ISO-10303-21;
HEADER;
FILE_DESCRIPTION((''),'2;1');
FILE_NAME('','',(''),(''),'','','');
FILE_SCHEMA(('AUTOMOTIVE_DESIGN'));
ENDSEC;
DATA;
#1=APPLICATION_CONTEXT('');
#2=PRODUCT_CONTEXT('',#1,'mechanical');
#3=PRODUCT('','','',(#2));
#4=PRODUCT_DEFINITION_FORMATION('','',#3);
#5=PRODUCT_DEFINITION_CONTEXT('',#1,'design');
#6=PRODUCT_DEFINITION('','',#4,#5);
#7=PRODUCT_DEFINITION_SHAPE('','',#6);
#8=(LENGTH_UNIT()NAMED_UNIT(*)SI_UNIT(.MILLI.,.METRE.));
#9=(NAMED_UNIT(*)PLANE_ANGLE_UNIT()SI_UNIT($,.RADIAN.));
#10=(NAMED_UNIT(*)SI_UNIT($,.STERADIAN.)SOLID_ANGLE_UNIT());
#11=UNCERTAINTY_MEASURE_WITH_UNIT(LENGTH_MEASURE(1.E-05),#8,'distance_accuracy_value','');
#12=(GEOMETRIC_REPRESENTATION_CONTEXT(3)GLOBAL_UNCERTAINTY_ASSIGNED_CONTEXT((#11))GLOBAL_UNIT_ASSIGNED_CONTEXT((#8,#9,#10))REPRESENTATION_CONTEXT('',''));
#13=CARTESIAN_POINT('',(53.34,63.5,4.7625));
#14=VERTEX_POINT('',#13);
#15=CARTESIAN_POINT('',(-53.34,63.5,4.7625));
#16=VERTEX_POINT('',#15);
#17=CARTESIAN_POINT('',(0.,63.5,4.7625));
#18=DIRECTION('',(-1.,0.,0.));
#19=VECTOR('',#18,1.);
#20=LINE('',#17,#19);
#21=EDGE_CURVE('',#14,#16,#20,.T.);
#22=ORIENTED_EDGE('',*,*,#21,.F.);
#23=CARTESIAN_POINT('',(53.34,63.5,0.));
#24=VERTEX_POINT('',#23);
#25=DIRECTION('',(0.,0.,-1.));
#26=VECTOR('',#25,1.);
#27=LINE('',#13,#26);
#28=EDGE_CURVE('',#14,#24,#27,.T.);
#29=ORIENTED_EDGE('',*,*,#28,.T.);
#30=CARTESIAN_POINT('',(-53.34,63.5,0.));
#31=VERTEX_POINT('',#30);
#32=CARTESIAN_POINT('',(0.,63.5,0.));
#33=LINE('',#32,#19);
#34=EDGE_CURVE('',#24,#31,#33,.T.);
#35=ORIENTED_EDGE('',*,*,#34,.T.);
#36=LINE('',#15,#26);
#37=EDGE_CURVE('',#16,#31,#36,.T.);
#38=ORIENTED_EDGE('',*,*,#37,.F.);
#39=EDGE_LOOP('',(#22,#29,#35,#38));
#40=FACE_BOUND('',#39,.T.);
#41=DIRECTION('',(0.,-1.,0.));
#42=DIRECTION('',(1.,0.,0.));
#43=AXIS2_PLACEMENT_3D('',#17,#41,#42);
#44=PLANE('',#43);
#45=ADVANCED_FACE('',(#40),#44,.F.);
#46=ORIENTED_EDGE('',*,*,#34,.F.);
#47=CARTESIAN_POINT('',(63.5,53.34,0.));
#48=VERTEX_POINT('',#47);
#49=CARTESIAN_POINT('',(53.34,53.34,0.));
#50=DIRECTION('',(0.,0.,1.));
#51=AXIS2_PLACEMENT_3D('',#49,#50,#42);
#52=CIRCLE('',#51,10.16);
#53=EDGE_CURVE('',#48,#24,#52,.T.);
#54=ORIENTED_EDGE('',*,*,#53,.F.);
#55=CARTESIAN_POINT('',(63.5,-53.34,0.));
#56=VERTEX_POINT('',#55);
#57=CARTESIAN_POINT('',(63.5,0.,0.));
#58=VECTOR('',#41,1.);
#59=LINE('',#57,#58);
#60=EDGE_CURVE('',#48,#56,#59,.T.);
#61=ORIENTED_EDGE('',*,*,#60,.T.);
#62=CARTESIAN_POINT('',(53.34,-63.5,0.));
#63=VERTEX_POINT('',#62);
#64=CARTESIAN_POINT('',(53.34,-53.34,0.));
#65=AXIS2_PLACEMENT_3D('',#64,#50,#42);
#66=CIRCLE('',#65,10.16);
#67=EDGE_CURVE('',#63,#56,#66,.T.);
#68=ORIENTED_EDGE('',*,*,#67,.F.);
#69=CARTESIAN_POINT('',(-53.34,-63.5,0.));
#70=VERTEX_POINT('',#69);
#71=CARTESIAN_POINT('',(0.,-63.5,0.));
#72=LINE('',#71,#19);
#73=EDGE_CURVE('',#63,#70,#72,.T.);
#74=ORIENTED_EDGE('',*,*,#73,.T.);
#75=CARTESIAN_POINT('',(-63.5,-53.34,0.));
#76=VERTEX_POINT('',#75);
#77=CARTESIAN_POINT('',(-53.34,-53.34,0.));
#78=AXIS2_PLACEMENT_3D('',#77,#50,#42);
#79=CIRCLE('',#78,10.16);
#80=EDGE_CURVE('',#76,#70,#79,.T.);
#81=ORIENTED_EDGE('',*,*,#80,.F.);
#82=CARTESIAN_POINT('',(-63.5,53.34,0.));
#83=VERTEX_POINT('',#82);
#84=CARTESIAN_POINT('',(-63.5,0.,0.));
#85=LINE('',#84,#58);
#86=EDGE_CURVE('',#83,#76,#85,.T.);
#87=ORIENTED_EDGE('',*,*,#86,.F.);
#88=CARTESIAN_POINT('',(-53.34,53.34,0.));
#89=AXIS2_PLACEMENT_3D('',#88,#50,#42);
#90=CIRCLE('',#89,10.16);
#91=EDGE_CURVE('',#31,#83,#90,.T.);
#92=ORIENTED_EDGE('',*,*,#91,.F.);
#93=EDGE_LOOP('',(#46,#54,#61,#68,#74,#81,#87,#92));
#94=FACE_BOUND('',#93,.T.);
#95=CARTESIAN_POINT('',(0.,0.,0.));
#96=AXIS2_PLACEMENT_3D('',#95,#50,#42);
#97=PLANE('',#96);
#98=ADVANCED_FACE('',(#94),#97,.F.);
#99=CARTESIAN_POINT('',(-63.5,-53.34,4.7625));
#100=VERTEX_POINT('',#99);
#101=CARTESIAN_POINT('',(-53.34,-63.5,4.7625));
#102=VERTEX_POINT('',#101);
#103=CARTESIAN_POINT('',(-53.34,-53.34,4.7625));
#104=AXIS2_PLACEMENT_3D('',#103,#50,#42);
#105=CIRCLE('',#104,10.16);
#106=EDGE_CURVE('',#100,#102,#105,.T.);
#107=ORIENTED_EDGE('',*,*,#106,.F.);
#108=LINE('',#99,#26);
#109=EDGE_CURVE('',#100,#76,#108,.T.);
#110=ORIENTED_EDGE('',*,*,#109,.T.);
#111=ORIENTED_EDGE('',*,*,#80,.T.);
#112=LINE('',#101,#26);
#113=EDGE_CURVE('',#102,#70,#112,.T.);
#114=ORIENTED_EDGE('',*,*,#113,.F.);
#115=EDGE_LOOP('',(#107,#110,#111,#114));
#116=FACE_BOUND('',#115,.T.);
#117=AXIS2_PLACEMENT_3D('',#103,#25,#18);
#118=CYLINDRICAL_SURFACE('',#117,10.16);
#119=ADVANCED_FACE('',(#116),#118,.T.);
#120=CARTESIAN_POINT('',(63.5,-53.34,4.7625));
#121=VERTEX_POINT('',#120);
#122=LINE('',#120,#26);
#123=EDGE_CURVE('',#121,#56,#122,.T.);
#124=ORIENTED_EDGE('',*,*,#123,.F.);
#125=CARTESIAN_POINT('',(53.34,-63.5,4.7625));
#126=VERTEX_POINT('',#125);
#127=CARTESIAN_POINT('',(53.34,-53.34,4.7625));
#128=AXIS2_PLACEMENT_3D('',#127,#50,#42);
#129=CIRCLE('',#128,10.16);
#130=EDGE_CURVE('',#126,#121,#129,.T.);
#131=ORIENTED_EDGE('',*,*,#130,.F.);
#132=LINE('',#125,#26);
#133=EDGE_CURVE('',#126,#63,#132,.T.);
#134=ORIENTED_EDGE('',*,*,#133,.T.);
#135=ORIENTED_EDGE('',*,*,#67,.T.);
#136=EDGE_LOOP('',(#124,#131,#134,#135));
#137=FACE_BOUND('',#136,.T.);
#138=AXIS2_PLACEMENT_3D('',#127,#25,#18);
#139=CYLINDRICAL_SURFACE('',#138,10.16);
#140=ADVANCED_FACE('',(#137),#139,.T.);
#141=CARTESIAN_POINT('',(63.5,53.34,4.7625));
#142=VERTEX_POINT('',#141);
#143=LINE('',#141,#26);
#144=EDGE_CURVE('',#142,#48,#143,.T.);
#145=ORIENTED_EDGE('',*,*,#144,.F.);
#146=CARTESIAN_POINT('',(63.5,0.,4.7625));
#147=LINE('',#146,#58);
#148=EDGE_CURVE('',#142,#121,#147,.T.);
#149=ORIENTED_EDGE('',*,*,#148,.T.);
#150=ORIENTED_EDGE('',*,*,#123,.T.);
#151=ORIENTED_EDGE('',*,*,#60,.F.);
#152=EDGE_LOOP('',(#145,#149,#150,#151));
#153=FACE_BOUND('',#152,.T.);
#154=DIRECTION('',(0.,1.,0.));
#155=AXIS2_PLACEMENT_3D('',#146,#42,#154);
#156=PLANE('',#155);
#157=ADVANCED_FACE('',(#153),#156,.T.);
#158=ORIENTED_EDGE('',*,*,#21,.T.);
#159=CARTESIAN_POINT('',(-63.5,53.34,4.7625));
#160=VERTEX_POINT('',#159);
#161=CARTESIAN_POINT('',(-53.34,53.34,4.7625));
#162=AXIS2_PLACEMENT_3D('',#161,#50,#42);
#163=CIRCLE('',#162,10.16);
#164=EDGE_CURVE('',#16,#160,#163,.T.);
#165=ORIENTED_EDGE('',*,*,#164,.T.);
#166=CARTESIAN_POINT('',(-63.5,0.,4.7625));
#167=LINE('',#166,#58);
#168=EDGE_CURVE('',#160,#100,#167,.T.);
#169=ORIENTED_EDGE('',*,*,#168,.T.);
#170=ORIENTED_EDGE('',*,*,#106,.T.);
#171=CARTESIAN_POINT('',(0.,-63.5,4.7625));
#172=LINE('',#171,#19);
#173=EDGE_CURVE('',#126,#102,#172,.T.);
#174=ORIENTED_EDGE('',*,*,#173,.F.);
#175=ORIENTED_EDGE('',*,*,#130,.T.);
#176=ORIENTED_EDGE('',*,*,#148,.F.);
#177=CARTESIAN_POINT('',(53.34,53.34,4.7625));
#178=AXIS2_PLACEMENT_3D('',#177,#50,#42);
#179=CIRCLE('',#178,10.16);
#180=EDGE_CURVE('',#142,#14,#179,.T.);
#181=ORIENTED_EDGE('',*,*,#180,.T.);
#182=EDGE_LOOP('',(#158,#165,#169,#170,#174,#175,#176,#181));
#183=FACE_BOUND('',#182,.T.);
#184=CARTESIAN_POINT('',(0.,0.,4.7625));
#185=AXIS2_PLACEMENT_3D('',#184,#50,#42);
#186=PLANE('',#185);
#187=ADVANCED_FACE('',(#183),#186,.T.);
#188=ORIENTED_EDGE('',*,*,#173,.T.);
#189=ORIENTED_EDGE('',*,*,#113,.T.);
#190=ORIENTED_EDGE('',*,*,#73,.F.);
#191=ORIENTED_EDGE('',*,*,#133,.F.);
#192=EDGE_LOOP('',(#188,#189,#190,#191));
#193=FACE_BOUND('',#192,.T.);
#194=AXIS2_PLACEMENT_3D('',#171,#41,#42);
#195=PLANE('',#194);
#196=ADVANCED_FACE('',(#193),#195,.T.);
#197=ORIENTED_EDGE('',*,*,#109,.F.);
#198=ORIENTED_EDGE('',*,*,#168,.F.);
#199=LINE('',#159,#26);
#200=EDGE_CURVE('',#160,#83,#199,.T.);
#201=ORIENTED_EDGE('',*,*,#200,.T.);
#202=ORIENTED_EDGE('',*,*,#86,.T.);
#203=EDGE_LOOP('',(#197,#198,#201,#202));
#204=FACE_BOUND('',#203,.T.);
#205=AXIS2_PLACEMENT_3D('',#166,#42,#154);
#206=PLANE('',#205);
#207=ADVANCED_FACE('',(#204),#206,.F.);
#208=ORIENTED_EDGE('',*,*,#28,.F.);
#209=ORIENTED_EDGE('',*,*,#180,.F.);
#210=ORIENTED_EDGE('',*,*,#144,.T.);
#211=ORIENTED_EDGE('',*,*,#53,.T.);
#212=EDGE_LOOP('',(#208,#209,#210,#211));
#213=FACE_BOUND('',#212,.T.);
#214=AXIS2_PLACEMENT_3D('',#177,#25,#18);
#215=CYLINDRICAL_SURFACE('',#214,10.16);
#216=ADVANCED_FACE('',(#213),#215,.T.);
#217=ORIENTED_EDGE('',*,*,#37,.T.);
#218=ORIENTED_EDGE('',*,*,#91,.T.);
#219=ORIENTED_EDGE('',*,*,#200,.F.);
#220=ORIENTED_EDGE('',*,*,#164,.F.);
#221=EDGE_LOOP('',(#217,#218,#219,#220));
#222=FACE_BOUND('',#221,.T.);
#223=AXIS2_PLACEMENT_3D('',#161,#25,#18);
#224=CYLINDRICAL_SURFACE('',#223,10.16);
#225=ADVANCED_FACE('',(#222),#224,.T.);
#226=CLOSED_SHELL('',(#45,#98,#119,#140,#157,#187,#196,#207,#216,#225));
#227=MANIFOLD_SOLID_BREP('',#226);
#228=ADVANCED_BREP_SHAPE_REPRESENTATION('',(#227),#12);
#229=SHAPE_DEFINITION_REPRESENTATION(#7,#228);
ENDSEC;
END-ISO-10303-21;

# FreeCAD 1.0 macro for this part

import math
import FreeCAD as App
import Part
import Sketcher
from FreeCAD import Vector
Q = App.Units.Quantity

doc = App.newDocument("Part")
body = doc.addObject("PartDesign::Body", "Body")

# Sketch on XY plane
sketch1 = body.newObject("Sketcher::SketchObject", "Sketch")
sketch1.AttachmentSupport = (doc.getObject("XY_Plane"), [""])
sketch1.MapMode = "FlatFace"
sketch1.addGeometry([
    Part.LineSegment(Vector(53, 64, 0), Vector(-53, 64, 0)),  # 0
    Part.ArcOfCircle(Part.Circle(Vector(-53, 53, 0), Vector(0, 0, 1), 10), math.radians(90), math.radians(180)),  # 1
    Part.LineSegment(Vector(-64, 53, 0), Vector(-64, -53, 0)),  # 2
    Part.ArcOfCircle(Part.Circle(Vector(-53, -53, 0), Vector(0, 0, 1), 10), math.radians(180), math.radians(270)),  # 3
    Part.LineSegment(Vector(-53, -64, 0), Vector(53, -64, 0)),  # 4
    Part.ArcOfCircle(Part.Circle(Vector(53, -53, 0), Vector(0, 0, 1), 10), math.radians(-90), math.radians(0)),  # 5
    Part.LineSegment(Vector(64, -53, 0), Vector(64, 53, 0)),  # 6
    Part.ArcOfCircle(Part.Circle(Vector(53, 53, 0), Vector(0, 0, 1), 10), math.radians(0), math.radians(90)),  # 7
], False)
sketch1.addConstraint([
    Sketcher.Constraint("Tangent", 0, 2, 1, 1),
    Sketcher.Constraint("Tangent", 1, 2, 2, 1),
    Sketcher.Constraint("Tangent", 2, 2, 3, 1),
    Sketcher.Constraint("Tangent", 3, 2, 4, 1),
    Sketcher.Constraint("Tangent", 4, 2, 5, 1),
    Sketcher.Constraint("Tangent", 5, 2, 6, 1),
    Sketcher.Constraint("Tangent", 6, 2, 7, 1),
    Sketcher.Constraint("Tangent", 7, 2, 0, 1),
    Sketcher.Constraint("Horizontal", 0),
    Sketcher.Constraint("Vertical", 2),
    Sketcher.Constraint("Horizontal", 4),
    Sketcher.Constraint("Vertical", 6),
    Sketcher.Constraint("Equal", 1, 3),
    Sketcher.Constraint("Equal", 3, 5),
    Sketcher.Constraint("Equal", 5, 7),
    Sketcher.Constraint("Symmetric", 1, 3, 5, 3, -1, 1),
    Sketcher.Constraint("Equal", 4, 2),
    Sketcher.Constraint("Radius", 1, Q("0.4 in")),
    Sketcher.Constraint("DistanceX", 0, 2, 0, 1, Q("4.2 in")),
])
pad1 = body.newObject("PartDesign::Pad", "Pad")
pad1.Profile = sketch1
pad1.Length = Q("0.1875 in")

doc.recompute()
